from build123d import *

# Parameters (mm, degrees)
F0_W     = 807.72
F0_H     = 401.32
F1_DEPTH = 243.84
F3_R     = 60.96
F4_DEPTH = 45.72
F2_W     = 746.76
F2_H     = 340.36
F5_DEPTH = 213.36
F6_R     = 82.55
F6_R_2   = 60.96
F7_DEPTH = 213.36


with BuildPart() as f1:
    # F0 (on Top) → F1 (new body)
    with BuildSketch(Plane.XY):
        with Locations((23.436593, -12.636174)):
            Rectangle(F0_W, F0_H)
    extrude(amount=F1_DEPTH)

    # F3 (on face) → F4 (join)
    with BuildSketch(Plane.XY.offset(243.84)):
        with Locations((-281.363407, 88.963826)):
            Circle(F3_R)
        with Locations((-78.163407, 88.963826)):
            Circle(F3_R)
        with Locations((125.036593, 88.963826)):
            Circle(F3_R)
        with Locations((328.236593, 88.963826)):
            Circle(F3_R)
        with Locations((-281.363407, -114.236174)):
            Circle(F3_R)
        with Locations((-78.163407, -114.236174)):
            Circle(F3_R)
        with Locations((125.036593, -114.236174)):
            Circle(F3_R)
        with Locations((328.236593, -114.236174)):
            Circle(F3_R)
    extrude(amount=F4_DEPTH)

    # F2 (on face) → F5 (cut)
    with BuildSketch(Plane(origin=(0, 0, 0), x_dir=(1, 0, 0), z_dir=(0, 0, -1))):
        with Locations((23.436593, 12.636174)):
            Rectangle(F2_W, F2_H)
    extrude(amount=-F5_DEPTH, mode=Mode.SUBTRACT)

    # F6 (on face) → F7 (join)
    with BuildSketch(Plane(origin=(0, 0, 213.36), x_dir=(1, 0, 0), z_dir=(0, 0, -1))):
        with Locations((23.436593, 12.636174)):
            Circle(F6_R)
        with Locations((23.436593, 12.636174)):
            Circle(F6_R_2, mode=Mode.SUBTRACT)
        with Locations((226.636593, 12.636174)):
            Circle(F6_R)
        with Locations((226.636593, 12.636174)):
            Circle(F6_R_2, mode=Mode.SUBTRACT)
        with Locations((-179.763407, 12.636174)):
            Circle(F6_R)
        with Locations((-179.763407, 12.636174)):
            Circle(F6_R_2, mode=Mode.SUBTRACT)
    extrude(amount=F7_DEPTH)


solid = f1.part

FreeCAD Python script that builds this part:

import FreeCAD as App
import Part
import Sketcher

V = App.Vector
Q = App.Units.Quantity

doc = App.newDocument("Part")
body = doc.addObject("PartDesign::Body", "Body")

sketch1 = doc.addObject("Sketcher::SketchObject", "Sketch")
body.addObject(sketch1)
sketch1.AttachmentSupport = (doc.XY_Plane, [""])
sketch1.MapMode = "FlatFace"
sketch1.addGeometry(Part.LineSegment(V(-380.423407, 188.023826, 0), V(-380.423407, -213.296174, 0)), False)
sketch1.addGeometry(Part.LineSegment(V(-380.423407, -213.296174, 0), V(427.296593, -213.296174, 0)), False)
sketch1.addGeometry(Part.LineSegment(V(427.296593, -213.296174, 0), V(427.296593, 188.023826, 0)), False)
sketch1.addGeometry(Part.LineSegment(V(427.296593, 188.023826, 0), V(-380.423407, 188.023826, 0)), False)
sketch1.addConstraint(Sketcher.Constraint("Coincident", 0, 2, 1, 1))
sketch1.addConstraint(Sketcher.Constraint("Coincident", 1, 2, 2, 1))
sketch1.addConstraint(Sketcher.Constraint("Coincident", 2, 2, 3, 1))
sketch1.addConstraint(Sketcher.Constraint("Coincident", 3, 2, 0, 1))
sketch1.addConstraint(Sketcher.Constraint("Vertical", 0))
sketch1.addConstraint(Sketcher.Constraint("Horizontal", 1))
sketch1.addConstraint(Sketcher.Constraint("Vertical", 2))
sketch1.addConstraint(Sketcher.Constraint("Horizontal", 3))
sketch1.addConstraint(Sketcher.Constraint("DistanceX", 1, 1, 1, 2, Q("31.8 in")))
sketch1.addConstraint(Sketcher.Constraint("DistanceY", 0, 2, 0, 1, Q("15.8 in")))
sketch1.addConstraint(Sketcher.Constraint("DistanceX", 0, 2, -1, 1, Q("380.423407 mm")))
sketch1.addConstraint(Sketcher.Constraint("DistanceY", 0, 2, -1, 1, Q("213.296174 mm")))
pad1 = doc.addObject("PartDesign::Pad", "Pad")
body.addObject(pad1)
pad1.Profile = sketch1
pad1.Length = Q("9.6 in")

sketch2 = doc.addObject("Sketcher::SketchObject", "Sketch001")
body.addObject(sketch2)
sketch2.AttachmentSupport = (doc.XY_Plane, [""])
sketch2.MapMode = "FlatFace"
sketch2.AttachmentOffset = App.Placement(V(0, 0, 9.6 * 25.4), App.Rotation())
sketch2.addGeometry(Part.Circle(V(-281.363407, 88.963826, 0), V(0, 0, 1), 60.96), False)
sketch2.addGeometry(Part.Circle(V(-78.163407, 88.963826, 0), V(0, 0, 1), 60.96), False)
sketch2.addGeometry(Part.Circle(V(125.036593, 88.963826, 0), V(0, 0, 1), 60.96), False)
sketch2.addGeometry(Part.Circle(V(328.236593, 88.963826, 0), V(0, 0, 1), 60.96), False)
sketch2.addGeometry(Part.Circle(V(-281.363407, -114.236174, 0), V(0, 0, 1), 60.96), False)
sketch2.addGeometry(Part.Circle(V(-78.163407, -114.236174, 0), V(0, 0, 1), 60.96), False)
sketch2.addGeometry(Part.Circle(V(125.036593, -114.236174, 0), V(0, 0, 1), 60.96), False)
sketch2.addGeometry(Part.Circle(V(328.236593, -114.236174, 0), V(0, 0, 1), 60.96), False)
sketch2.addConstraint(Sketcher.Constraint("Equal", 0, 1))
sketch2.addConstraint(Sketcher.Constraint("Equal", 1, 2))
sketch2.addConstraint(Sketcher.Constraint("Equal", 2, 3))
sketch2.addConstraint(Sketcher.Constraint("Equal", 3, 4))
sketch2.addConstraint(Sketcher.Constraint("Equal", 4, 5))
sketch2.addConstraint(Sketcher.Constraint("Equal", 5, 6))
sketch2.addConstraint(Sketcher.Constraint("Equal", 6, 7))
sketch2.addConstraint(Sketcher.Constraint("Horizontal", 0, 3, 1, 3))
sketch2.addConstraint(Sketcher.Constraint("Horizontal", 1, 3, 2, 3))
sketch2.addConstraint(Sketcher.Constraint("Horizontal", 2, 3, 3, 3))
sketch2.addConstraint(Sketcher.Constraint("Horizontal", 4, 3, 5, 3))
sketch2.addConstraint(Sketcher.Constraint("Horizontal", 5, 3, 6, 3))
sketch2.addConstraint(Sketcher.Constraint("Horizontal", 6, 3, 7, 3))
sketch2.addConstraint(Sketcher.Constraint("Vertical", 0, 3, 4, 3))
sketch2.addConstraint(Sketcher.Constraint("Vertical", 1, 3, 5, 3))
sketch2.addConstraint(Sketcher.Constraint("Vertical", 2, 3, 6, 3))
sketch2.addConstraint(Sketcher.Constraint("Vertical", 3, 3, 7, 3))
sketch2.addConstraint(Sketcher.Constraint("Diameter", 0, Q("4.8 in")))
sketch2.addConstraint(Sketcher.Constraint("DistanceX", 0, 3, 1, 3, Q("8 in")))
sketch2.addConstraint(Sketcher.Constraint("DistanceX", 1, 3, 2, 3, Q("8 in")))
sketch2.addConstraint(Sketcher.Constraint("DistanceX", 2, 3, 3, 3, Q("8 in")))
sketch2.addConstraint(Sketcher.Constraint("DistanceY", 4, 3, 0, 3, Q("8 in")))
sketch2.addConstraint(Sketcher.Constraint("DistanceX", 0, 3, -1, 1, Q("281.363407 mm")))
sketch2.addConstraint(Sketcher.Constraint("DistanceY", -1, 1, 0, 3, Q("88.963826 mm")))
pad2 = doc.addObject("PartDesign::Pad", "Pad001")
body.addObject(pad2)
pad2.Profile = sketch2
pad2.Length = Q("1.8 in")

sketch3 = doc.addObject("Sketcher::SketchObject", "Sketch002")
body.addObject(sketch3)
sketch3.AttachmentSupport = (doc.XY_Plane, [""])
sketch3.MapMode = "FlatFace"
sketch3.addGeometry(Part.LineSegment(V(-349.943407, -182.816174, 0), V(-349.943407, 157.543826, 0)), False)
sketch3.addGeometry(Part.LineSegment(V(-349.943407, 157.543826, 0), V(396.816593, 157.543826, 0)), False)
sketch3.addGeometry(Part.LineSegment(V(396.816593, 157.543826, 0), V(396.816593, -182.816174, 0)), False)
sketch3.addGeometry(Part.LineSegment(V(396.816593, -182.816174, 0), V(-349.943407, -182.816174, 0)), False)
sketch3.addConstraint(Sketcher.Constraint("Coincident", 0, 2, 1, 1))
sketch3.addConstraint(Sketcher.Constraint("Coincident", 1, 2, 2, 1))
sketch3.addConstraint(Sketcher.Constraint("Coincident", 2, 2, 3, 1))
sketch3.addConstraint(Sketcher.Constraint("Coincident", 3, 2, 0, 1))
sketch3.addConstraint(Sketcher.Constraint("Vertical", 0))
sketch3.addConstraint(Sketcher.Constraint("Horizontal", 1))
sketch3.addConstraint(Sketcher.Constraint("Vertical", 2))
sketch3.addConstraint(Sketcher.Constraint("Horizontal", 3))
sketch3.addConstraint(Sketcher.Constraint("DistanceX", 1, 1, 1, 2, Q("29.4 in")))
sketch3.addConstraint(Sketcher.Constraint("DistanceY", 0, 1, 0, 2, Q("13.4 in")))
sketch3.addConstraint(Sketcher.Constraint("DistanceX", 0, 2, -1, 1, Q("349.943407 mm")))
sketch3.addConstraint(Sketcher.Constraint("DistanceY", -1, 1, 0, 2, Q("157.543826 mm")))
pocket1 = doc.addObject("PartDesign::Pocket", "Pocket")
body.addObject(pocket1)
pocket1.Profile = sketch3
pocket1.Length = Q("8.4 in")
pocket1.Reversed = True

sketch4 = doc.addObject("Sketcher::SketchObject", "Sketch003")
body.addObject(sketch4)
sketch4.AttachmentSupport = (doc.XY_Plane, [""])
sketch4.MapMode = "FlatFace"
sketch4.AttachmentOffset = App.Placement(V(0, 0, 8.4 * 25.4), App.Rotation())
sketch4.addGeometry(Part.Circle(V(23.436593, -12.636174, 0), V(0, 0, 1), 82.55), False)
sketch4.addGeometry(Part.Circle(V(23.436593, -12.636174, 0), V(0, 0, 1), 60.96), False)
sketch4.addGeometry(Part.Circle(V(226.636593, -12.636174, 0), V(0, 0, 1), 82.55), False)
sketch4.addGeometry(Part.Circle(V(226.636593, -12.636174, 0), V(0, 0, 1), 60.96), False)
sketch4.addGeometry(Part.Circle(V(-179.763407, -12.636174, 0), V(0, 0, 1), 82.55), False)
sketch4.addGeometry(Part.Circle(V(-179.763407, -12.636174, 0), V(0, 0, 1), 60.96), False)
sketch4.addConstraint(Sketcher.Constraint("Coincident", 1, 3, 0, 3))
sketch4.addConstraint(Sketcher.Constraint("Coincident", 3, 3, 2, 3))
sketch4.addConstraint(Sketcher.Constraint("Coincident", 5, 3, 4, 3))
sketch4.addConstraint(Sketcher.Constraint("Equal", 0, 2))
sketch4.addConstraint(Sketcher.Constraint("Equal", 1, 3))
sketch4.addConstraint(Sketcher.Constraint("Equal", 2, 4))
sketch4.addConstraint(Sketcher.Constraint("Equal", 3, 5))
sketch4.addConstraint(Sketcher.Constraint("Horizontal", 1, 3, 2, 3))
sketch4.addConstraint(Sketcher.Constraint("Horizontal", 3, 3, 4, 3))
sketch4.addConstraint(Sketcher.Constraint("Diameter", 0, Q("6.5 in")))
sketch4.addConstraint(Sketcher.Constraint("Diameter", 1, Q("4.8 in")))
sketch4.addConstraint(Sketcher.Constraint("DistanceX", 0, 3, 2, 3, Q("8 in")))
sketch4.addConstraint(Sketcher.Constraint("DistanceX", 4, 3, 0, 3, Q("8 in")))
sketch4.addConstraint(Sketcher.Constraint("DistanceX", -1, 1, 0, 3, Q("23.436593 mm")))
sketch4.addConstraint(Sketcher.Constraint("DistanceY", 0, 3, -1, 1, Q("12.636174 mm")))
pad3 = doc.addObject("PartDesign::Pad", "Pad002")
body.addObject(pad3)
pad3.Profile = sketch4
pad3.Length = Q("8.4 in")
pad3.Reversed = True

doc.recompute()
